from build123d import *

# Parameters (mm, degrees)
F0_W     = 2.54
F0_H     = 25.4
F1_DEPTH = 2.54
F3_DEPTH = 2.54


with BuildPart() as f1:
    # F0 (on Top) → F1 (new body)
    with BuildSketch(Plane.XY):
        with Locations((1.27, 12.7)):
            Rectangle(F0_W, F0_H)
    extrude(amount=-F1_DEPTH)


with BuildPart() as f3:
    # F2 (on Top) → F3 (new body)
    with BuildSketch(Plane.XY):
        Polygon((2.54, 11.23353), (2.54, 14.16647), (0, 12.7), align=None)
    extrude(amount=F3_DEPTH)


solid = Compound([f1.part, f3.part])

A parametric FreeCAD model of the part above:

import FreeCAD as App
import Part
import Sketcher
Q = App.Units.Quantity


def add_polygon(sketch, points):
    """Adds a closed chain of lines whose ends are joined by coincident constraints."""
    first, n = sketch.GeometryCount, len(points)
    for a, b in zip(points, points[1:] + points[:1]):
        sketch.addGeometry(Part.LineSegment(App.Vector(*a, 0), App.Vector(*b, 0)), False)
    for i in range(n):
        sketch.addConstraint(Sketcher.Constraint("Coincident", first + i, 2, first + (i + 1) % n, 1))

doc = App.newDocument("Part")
params = doc.addObject("Spreadsheet::Sheet", "Params")
for row, (alias, value) in enumerate([
    ("sketch1_height", "1 in"),
    ("sketch1_width", "0.1 in"),
    ("pad1_length", "0.1 in"),
    ("pad2_length", "0.1 in"),
], start=1):
    params.set(f"A{row}", alias)
    params.set(f"B{row}", "=" + value)
    params.setAlias(f"B{row}", alias)

body = doc.addObject("PartDesign::Body", "Body")

# Sketch on XY plane
sketch1 = doc.addObject("Sketcher::SketchObject", "Sketch")
body.addObject(sketch1)
sketch1.AttachmentSupport = (doc.XY_Plane, [""])
sketch1.MapMode = "FlatFace"
add_polygon(sketch1, [(0, 25.4), (0, 0), (2.54, 0), (2.54, 25.4)])  # lines 0-3
sketch1.addConstraint([
    Sketcher.Constraint("Vertical", 0),
    Sketcher.Constraint("Horizontal", 1),
    Sketcher.Constraint("Vertical", 2),
    Sketcher.Constraint("Horizontal", 3),
    Sketcher.Constraint("Coincident", 0, 2, -1, 1),
    Sketcher.Constraint("DistanceY", 0, 2, 0, 1, Q("1 in")),
    Sketcher.Constraint("DistanceX", 1, 1, 1, 2, Q("0.1 in")),
])
sketch1.setExpression("Constraints[9]", "Params.sketch1_height")
sketch1.setExpression("Constraints[10]", "Params.sketch1_width")
pad1 = doc.addObject("PartDesign::Pad", "Pad")
body.addObject(pad1)
pad1.Profile = sketch1
pad1.setExpression("Length", "Params.pad1_length")
pad1.Reversed = True
body2 = doc.addObject("PartDesign::Body", "Body001")

# Sketch on XY plane
sketch2 = doc.addObject("Sketcher::SketchObject", "Sketch001")
body2.addObject(sketch2)
sketch2.AttachmentSupport = (doc.getObject("XY_Plane001"), [""])
sketch2.MapMode = "FlatFace"
add_polygon(sketch2, [(2.54, 11.23353), (2.54, 14.16647), (0, 12.7)])  # lines 0-2
sketch2.addConstraint([
    Sketcher.Constraint("Vertical", 0),
    Sketcher.Constraint("PointOnObject", 1, 2, -2),
    Sketcher.Constraint("Equal", 1, 2),
    Sketcher.Constraint("Angle", 1, Q("-149.999995 deg")),
    Sketcher.Constraint("DistanceX", -1, 1, 0, 2, Q("0.1 in")),
    Sketcher.Constraint("DistanceY", -1, 1, 1, 2, Q("0.5 in")),
])
pad2 = doc.addObject("PartDesign::Pad", "Pad001")
body2.addObject(pad2)
pad2.Profile = sketch2
pad2.setExpression("Length", "Params.pad2_length")

doc.recompute()
